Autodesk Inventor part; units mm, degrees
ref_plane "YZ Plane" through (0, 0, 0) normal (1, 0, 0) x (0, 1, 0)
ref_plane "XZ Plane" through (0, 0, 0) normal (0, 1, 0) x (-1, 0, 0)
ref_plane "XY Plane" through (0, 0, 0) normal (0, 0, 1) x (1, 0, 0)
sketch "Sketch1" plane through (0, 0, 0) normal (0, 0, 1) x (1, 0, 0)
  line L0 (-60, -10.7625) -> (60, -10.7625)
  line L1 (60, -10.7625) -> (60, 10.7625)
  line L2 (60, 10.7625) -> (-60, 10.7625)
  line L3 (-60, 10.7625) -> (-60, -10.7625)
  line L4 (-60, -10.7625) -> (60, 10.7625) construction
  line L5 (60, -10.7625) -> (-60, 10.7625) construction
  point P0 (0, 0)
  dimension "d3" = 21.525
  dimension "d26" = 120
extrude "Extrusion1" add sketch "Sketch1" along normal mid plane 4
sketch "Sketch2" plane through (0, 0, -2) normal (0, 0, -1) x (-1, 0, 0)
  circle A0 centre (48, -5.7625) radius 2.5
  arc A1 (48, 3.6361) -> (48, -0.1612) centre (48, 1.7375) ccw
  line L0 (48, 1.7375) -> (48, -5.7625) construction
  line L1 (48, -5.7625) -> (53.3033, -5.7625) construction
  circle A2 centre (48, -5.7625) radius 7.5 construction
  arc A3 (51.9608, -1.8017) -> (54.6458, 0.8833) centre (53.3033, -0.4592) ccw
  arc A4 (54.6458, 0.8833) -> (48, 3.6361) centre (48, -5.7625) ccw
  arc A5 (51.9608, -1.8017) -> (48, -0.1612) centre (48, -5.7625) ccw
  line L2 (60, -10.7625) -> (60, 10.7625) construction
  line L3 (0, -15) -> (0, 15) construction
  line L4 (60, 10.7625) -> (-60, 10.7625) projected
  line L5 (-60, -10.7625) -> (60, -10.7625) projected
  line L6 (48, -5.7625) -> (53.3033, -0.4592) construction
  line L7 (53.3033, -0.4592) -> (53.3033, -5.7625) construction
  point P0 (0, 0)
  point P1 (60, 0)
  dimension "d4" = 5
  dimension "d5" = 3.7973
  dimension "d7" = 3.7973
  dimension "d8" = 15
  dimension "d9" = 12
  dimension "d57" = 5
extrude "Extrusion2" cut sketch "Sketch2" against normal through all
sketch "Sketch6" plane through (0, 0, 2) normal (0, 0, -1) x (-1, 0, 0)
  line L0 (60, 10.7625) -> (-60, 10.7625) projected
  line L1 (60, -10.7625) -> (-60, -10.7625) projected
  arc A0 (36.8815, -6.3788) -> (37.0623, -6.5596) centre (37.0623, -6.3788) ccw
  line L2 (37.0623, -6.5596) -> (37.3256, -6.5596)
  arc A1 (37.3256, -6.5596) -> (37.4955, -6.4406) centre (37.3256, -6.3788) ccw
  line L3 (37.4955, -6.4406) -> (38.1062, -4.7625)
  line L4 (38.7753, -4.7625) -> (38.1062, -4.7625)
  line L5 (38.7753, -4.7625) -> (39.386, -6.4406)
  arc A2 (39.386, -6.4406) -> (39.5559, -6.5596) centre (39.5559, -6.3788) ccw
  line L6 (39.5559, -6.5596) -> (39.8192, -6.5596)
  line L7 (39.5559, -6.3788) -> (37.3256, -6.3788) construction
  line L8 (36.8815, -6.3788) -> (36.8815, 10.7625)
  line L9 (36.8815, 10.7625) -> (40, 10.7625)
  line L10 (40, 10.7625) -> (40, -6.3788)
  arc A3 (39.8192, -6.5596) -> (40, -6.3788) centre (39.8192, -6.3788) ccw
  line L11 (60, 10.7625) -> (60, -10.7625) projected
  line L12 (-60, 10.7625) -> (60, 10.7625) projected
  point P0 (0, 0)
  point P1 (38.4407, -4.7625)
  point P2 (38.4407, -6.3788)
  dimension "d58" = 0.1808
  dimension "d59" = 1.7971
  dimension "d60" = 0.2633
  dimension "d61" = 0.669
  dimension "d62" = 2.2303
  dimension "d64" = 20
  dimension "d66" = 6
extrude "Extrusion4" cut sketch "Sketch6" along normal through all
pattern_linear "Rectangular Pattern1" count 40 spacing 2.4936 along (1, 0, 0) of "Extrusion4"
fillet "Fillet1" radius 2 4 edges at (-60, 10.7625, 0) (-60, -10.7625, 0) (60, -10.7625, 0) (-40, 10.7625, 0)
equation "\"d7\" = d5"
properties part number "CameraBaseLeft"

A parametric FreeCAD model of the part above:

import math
import FreeCAD as App
import Part
import Sketcher
Q = App.Units.Quantity


def edges_at(feature, points):
    """Names of the edges that pass closest to the given points."""
    edges = feature.Shape.Edges
    near = lambda p: min(range(len(edges)), key=lambda i: edges[i].distToShape(Part.Vertex(*p))[0])
    return sorted({f"Edge{near(p) + 1}" for p in points})


def add_polygon(sketch, points):
    """Adds a closed chain of lines whose ends are joined by coincident constraints."""
    first, n = sketch.GeometryCount, len(points)
    for a, b in zip(points, points[1:] + points[:1]):
        sketch.addGeometry(Part.LineSegment(App.Vector(*a, 0), App.Vector(*b, 0)), False)
    for i in range(n):
        sketch.addConstraint(Sketcher.Constraint("Coincident", first + i, 2, first + (i + 1) % n, 1))

doc = App.newDocument("Part")
body = doc.addObject("PartDesign::Body", "Body")

# Sketch on XY plane
sketch1 = body.newObject("Sketcher::SketchObject", "Sketch")
sketch1.AttachmentSupport = (doc.getObject("XY_Plane"), [""])
sketch1.MapMode = "FlatFace"
add_polygon(sketch1, [(-60, 10.7625), (-60, -10.7625), (60, -10.7625), (60, 10.7625)])  # lines 0-3
sketch1.addConstraint([
    Sketcher.Constraint("Vertical", 0),
    Sketcher.Constraint("Horizontal", 1),
    Sketcher.Constraint("Vertical", 2),
    Sketcher.Constraint("Horizontal", 3),
    Sketcher.Constraint("Symmetric", 0, 2, 2, 2, -1, 1),
    Sketcher.Constraint("DistanceX", 1, 1, 1, 2, Q("120 mm")),
    Sketcher.Constraint("DistanceY", 0, 2, 0, 1, Q("21.525 mm")),
])
pad1 = body.newObject("PartDesign::Pad", "Pad")
pad1.Profile = sketch1
pad1.Length = 4
pad1.Midplane = True

# Sketch on XY plane
sketch2 = body.newObject("Sketcher::SketchObject", "Sketch001")
sketch2.AttachmentSupport = (doc.getObject("XY_Plane"), [""])
sketch2.MapMode = "FlatFace"
sketch2.AttachmentOffset = App.Placement(App.Vector(0, 0, -2), App.Rotation())
sketch2.addGeometry([
    Part.Circle(App.Vector(-48, -5.7625, 0), App.Vector(0, 0, 1), 2.5),  # 0
    Part.ArcOfCircle(Part.Circle(App.Vector(-48, -5.7625, 0), App.Vector(0, 0, 1), 9.39858), math.radians(90), math.radians(135)),  # 1
    Part.ArcOfCircle(Part.Circle(App.Vector(-48, 1.7375, 0), App.Vector(0, 0, 1), 1.8986), math.radians(-90), math.radians(90)),  # 2
    Part.ArcOfCircle(Part.Circle(App.Vector(-48, -5.7625, 0), App.Vector(0, 0, 1), 5.601417), math.radians(90), math.radians(135)),  # 3
    Part.ArcOfCircle(Part.Circle(App.Vector(-53.3033, -0.4592, 0), App.Vector(0, 0, 1), 1.898582), math.radians(135), math.radians(315)),  # 4
], False)
sketch2.addConstraint([
    Sketcher.Constraint("Tangent", 1, 1, 2, 2),
    Sketcher.Constraint("Tangent", 2, 1, 3, 1),
    Sketcher.Constraint("Tangent", 3, 2, 4, 2),
    Sketcher.Constraint("Tangent", 4, 1, 1, 2),
    Sketcher.Constraint("Coincident", 1, 3, 0, 3),
    Sketcher.Constraint("Coincident", 3, 3, 0, 3),
    Sketcher.Constraint("Vertical", 1, 3, 2, 3),
    Sketcher.Constraint("Diameter", 0, Q("5 mm")),
    Sketcher.Constraint("Radius", 2, Q("1.8986 mm")),
    Sketcher.Constraint("DistanceX", 0, 3, -1, 1, Q("48 mm")),
    Sketcher.Constraint("Radius", 1, Q("9.3986 mm")),
    Sketcher.Constraint("DistanceY", -1, 1, 1, 1, Q("3.636 mm")),
    Sketcher.Constraint("DistanceY", 4, 3, 2, 1, Q("0.298 mm")),
])
pocket1 = body.newObject("PartDesign::Pocket", "Pocket")
pocket1.Profile = sketch2
pocket1.Type = "ThroughAll"
pocket1.Reversed = True

# Sketch on XY plane
sketch3 = body.newObject("Sketcher::SketchObject", "Sketch002")
sketch3.AttachmentSupport = (doc.getObject("XY_Plane"), [""])
sketch3.MapMode = "FlatFace"
sketch3.AttachmentOffset = App.Placement(App.Vector(0, 0, 2), App.Rotation())
sketch3.addGeometry([
    Part.LineSegment(App.Vector(-40, -6.3788, 0), App.Vector(-40, 10.7625, 0)),  # 0
    Part.LineSegment(App.Vector(-40, 10.7625, 0), App.Vector(-36.8815, 10.7625, 0)),  # 1
    Part.LineSegment(App.Vector(-36.8815, 10.7625, 0), App.Vector(-36.8815, -6.3788, 0)),  # 2
    Part.ArcOfCircle(Part.Circle(App.Vector(-37.0623, -6.3788, 0), App.Vector(0, 0, 1), 0.1808), math.radians(-90), math.radians(0)),  # 3
    Part.LineSegment(App.Vector(-37.0623, -6.5596, 0), App.Vector(-37.3256, -6.5596, 0)),  # 4
    Part.ArcOfCircle(Part.Circle(App.Vector(-37.3256, -6.3788, 0), App.Vector(0, 0, 1), 0.1808), math.radians(-160.011478), math.radians(-90)),  # 5
    Part.LineSegment(App.Vector(-37.4955, -6.4406, 0), App.Vector(-38.1062, -4.7625, 0)),  # 6
    Part.LineSegment(App.Vector(-38.1062, -4.7625, 0), App.Vector(-38.7753, -4.7625, 0)),  # 7
    Part.LineSegment(App.Vector(-38.7753, -4.7625, 0), App.Vector(-39.386, -6.4406, 0)),  # 8
    Part.ArcOfCircle(Part.Circle(App.Vector(-39.5559, -6.3788, 0), App.Vector(0, 0, 1), 0.180791), math.radians(-90), math.radians(-19.988522)),  # 9
    Part.LineSegment(App.Vector(-39.5559, -6.5596, 0), App.Vector(-39.8192, -6.5596, 0)),  # 10
    Part.ArcOfCircle(Part.Circle(App.Vector(-39.8192, -6.3788, 0), App.Vector(0, 0, 1), 0.1808), math.radians(180), math.radians(270)),  # 11
], False)
sketch3.addConstraint([
    Sketcher.Constraint("Coincident", 0, 2, 1, 1),
    Sketcher.Constraint("Coincident", 1, 2, 2, 1),
    Sketcher.Constraint("Tangent", 2, 2, 3, 2),
    Sketcher.Constraint("Tangent", 3, 1, 4, 1),
    Sketcher.Constraint("Tangent", 4, 2, 5, 2),
    Sketcher.Constraint("Tangent", 5, 1, 6, 1),
    Sketcher.Constraint("Coincident", 6, 2, 7, 1),
    Sketcher.Constraint("Coincident", 7, 2, 8, 1),
    Sketcher.Constraint("Tangent", 8, 2, 9, 2),
    Sketcher.Constraint("Tangent", 9, 1, 10, 1),
    Sketcher.Constraint("Tangent", 10, 2, 11, 2),
    Sketcher.Constraint("Tangent", 11, 1, 0, 1),
    Sketcher.Constraint("Vertical", 0),
    Sketcher.Constraint("Horizontal", 1),
    Sketcher.Constraint("Vertical", 2),
    Sketcher.Constraint("Horizontal", 4),
    Sketcher.Constraint("Horizontal", 7),
    Sketcher.Constraint("Horizontal", 10),
    Sketcher.Constraint("Equal", 3, 5),
    Sketcher.Constraint("Equal", 5, 9),
    Sketcher.Constraint("Equal", 9, 11),
    Sketcher.Constraint("Horizontal", 5, 3, 9, 3),
    Sketcher.Constraint("Horizontal", 5, 1, 8, 2),
    Sketcher.Constraint("Equal", 4, 10),
    Sketcher.Constraint("Radius", 3, Q("0.1808 mm")),
    Sketcher.Constraint("DistanceX", 7, 2, 7, 1, Q("0.669 mm")),
    Sketcher.Constraint("DistanceX", 4, 2, 4, 1, Q("0.2633 mm")),
    Sketcher.Constraint("DistanceX", 0, 2, -1, 1, Q("40 mm")),
    Sketcher.Constraint("DistanceY", 4, 2, 6, 2, Q("1.797 mm")),
    Sketcher.Constraint("DistanceX", 9, 3, 5, 3, Q("2.2303 mm")),
    Sketcher.Constraint("DistanceY", 0, 1, 0, 2, Q("17.1413 mm")),
    Sketcher.Constraint("DistanceY", 3, 3, -1, 1, Q("6.3788 mm")),
])
pocket2 = body.newObject("PartDesign::Pocket", "Pocket001")
pocket2.Profile = sketch3
pocket2.Type = "ThroughAll"
doc.recompute()

linearpattern = body.newObject("PartDesign::LinearPattern", "LinearPattern")
linearpattern.Originals = [pocket2]
linearpattern.Direction = (doc.getObject("X_Axis"), [""])
linearpattern.Mode = "offset"
linearpattern.Offset = 2.4936
linearpattern.Occurrences = 40
body.Tip = linearpattern
doc.recompute()

fillet = body.newObject("PartDesign::Fillet", "Fillet")
fillet.Base = (linearpattern, edges_at(linearpattern, [
    (-60, 10.762, 0),
    (-60, -10.762, 0),
    (60, -10.762, 0),
    (-40, 10.762, 0),
]))
fillet.Radius = 2

doc.recompute()
